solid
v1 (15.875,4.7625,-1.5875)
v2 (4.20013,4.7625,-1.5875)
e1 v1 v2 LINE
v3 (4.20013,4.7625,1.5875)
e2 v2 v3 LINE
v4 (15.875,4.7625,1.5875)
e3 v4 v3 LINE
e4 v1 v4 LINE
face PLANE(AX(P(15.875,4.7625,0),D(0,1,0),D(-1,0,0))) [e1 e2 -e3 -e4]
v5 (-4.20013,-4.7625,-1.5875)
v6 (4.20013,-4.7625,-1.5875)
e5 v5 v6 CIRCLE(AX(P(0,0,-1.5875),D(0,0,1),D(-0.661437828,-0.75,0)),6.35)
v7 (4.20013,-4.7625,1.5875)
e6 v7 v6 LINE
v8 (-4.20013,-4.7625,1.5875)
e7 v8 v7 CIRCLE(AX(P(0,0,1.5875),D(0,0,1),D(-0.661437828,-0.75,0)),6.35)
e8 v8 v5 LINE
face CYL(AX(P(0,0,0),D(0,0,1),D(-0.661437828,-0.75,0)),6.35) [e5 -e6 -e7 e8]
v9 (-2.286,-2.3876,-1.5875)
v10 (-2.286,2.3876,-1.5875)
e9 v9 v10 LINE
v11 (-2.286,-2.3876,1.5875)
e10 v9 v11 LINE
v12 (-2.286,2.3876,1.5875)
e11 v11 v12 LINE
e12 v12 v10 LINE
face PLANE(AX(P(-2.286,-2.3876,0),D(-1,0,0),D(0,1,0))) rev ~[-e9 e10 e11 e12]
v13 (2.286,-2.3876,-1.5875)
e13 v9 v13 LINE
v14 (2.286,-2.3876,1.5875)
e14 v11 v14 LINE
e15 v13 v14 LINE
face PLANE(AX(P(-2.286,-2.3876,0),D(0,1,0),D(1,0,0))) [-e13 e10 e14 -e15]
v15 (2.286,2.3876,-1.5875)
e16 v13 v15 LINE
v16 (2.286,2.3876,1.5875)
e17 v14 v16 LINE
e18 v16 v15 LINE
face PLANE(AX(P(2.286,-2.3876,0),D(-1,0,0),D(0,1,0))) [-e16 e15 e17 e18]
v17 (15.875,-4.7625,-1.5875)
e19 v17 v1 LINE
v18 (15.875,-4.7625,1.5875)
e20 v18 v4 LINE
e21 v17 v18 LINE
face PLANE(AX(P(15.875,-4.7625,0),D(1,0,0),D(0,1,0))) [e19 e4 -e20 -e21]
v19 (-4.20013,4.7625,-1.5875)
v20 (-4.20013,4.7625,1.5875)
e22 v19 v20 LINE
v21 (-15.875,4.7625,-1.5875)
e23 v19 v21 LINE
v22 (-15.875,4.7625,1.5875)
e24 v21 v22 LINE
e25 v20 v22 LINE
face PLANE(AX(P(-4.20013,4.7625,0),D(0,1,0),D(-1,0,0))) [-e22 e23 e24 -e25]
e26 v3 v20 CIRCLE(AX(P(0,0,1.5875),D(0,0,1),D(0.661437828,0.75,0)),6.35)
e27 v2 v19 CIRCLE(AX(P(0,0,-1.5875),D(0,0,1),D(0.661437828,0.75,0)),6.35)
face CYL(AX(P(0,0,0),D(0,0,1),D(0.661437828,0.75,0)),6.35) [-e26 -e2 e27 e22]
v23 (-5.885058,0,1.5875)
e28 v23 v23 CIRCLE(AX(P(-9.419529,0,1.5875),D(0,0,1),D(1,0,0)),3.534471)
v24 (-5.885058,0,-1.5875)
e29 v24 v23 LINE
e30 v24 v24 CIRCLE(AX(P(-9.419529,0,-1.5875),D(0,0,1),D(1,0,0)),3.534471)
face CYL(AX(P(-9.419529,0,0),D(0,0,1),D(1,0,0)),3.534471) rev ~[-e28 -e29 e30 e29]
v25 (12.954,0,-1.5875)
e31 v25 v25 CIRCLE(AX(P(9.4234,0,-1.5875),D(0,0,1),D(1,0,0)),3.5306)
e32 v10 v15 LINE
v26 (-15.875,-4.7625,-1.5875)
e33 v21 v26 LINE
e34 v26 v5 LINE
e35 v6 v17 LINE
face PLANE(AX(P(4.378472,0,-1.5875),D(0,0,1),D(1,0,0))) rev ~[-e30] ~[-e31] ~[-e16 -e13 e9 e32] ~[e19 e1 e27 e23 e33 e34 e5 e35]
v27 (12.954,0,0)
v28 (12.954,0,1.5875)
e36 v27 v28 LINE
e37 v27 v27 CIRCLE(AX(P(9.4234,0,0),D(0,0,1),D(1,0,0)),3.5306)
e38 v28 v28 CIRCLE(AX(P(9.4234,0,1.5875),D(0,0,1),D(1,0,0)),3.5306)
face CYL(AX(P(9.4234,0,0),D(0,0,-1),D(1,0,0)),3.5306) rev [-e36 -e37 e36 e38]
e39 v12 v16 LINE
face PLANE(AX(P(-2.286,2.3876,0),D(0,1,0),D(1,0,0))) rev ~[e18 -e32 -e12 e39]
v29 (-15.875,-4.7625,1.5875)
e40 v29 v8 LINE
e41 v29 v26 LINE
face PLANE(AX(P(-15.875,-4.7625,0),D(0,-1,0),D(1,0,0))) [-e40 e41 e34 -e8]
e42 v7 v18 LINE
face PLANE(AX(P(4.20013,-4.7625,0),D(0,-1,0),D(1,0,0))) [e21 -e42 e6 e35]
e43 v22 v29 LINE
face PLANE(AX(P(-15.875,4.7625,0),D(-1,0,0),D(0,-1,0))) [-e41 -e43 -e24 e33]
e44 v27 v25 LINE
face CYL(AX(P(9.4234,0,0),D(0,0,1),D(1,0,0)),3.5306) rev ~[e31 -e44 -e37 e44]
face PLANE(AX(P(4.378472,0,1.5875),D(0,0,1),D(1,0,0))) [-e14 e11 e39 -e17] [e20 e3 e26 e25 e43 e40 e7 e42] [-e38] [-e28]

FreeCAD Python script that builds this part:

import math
import FreeCAD as App
import Part
import Sketcher
Q = App.Units.Quantity

doc = App.newDocument("Part")
body = doc.addObject("PartDesign::Body", "Body")

sketch1 = doc.addObject("Sketcher::SketchObject", "Sketch")
body.addObject(sketch1)
sketch1.AttachmentSupport = (doc.XY_Plane, [""])
sketch1.MapMode = "FlatFace"
sketch1.addGeometry([
    Part.LineSegment(App.Vector(4, -5, 0), App.Vector(16, -5, 0)),
    Part.LineSegment(App.Vector(16, -5, 0), App.Vector(16, 5, 0)),
    Part.LineSegment(App.Vector(16, 5, 0), App.Vector(4, 5, 0)),
    Part.ArcOfCircle(Part.Circle(App.Vector(0, 0, 0), App.Vector(0, 0, 1), 6), math.radians(49), math.radians(131)),
    Part.LineSegment(App.Vector(-4, 5, 0), App.Vector(-16, 5, 0)),
    Part.LineSegment(App.Vector(-16, 5, 0), App.Vector(-16, -5, 0)),
    Part.LineSegment(App.Vector(-16, -5, 0), App.Vector(-4, -5, 0)),
    Part.ArcOfCircle(Part.Circle(App.Vector(0, 0, 0), App.Vector(0, 0, 1), 6), math.radians(-131), math.radians(-49)),
], False)
sketch1.addConstraint([
    Sketcher.Constraint("Coincident", 0, 2, 1, 1),
    Sketcher.Constraint("Coincident", 1, 2, 2, 1),
    Sketcher.Constraint("Coincident", 2, 2, 3, 1),
    Sketcher.Constraint("Coincident", 3, 2, 4, 1),
    Sketcher.Constraint("Coincident", 4, 2, 5, 1),
    Sketcher.Constraint("Coincident", 5, 2, 6, 1),
    Sketcher.Constraint("Coincident", 6, 2, 7, 1),
    Sketcher.Constraint("Coincident", 7, 2, 0, 1),
    Sketcher.Constraint("Horizontal", 0),
    Sketcher.Constraint("Vertical", 1),
    Sketcher.Constraint("Horizontal", 2),
    Sketcher.Constraint("Horizontal", 4),
    Sketcher.Constraint("Vertical", 5),
    Sketcher.Constraint("Horizontal", 6),
    Sketcher.Constraint("Coincident", 3, 3, -1, 1),
    Sketcher.Constraint("Coincident", 7, 3, -1, 1),
    Sketcher.Constraint("Equal", 3, 7),
    Sketcher.Constraint("Symmetric", 0, 2, 4, 2, -1, 1),
    Sketcher.Constraint("Horizontal", 2, 2, 3, 2),
    Sketcher.Constraint("Horizontal", 0, 2, 5, 2),
    Sketcher.Constraint("Radius", 3, Q("0.25 in")),
    Sketcher.Constraint("DistanceY", 1, 1, 1, 2, Q("0.375 in")),
    Sketcher.Constraint("DistanceX", 4, 2, 1, 2, Q("1.25 in")),
])
pad1 = doc.addObject("PartDesign::Pad", "Pad")
body.addObject(pad1)
pad1.Profile = sketch1
pad1.Length = Q("0.125 in")
pad1.Midplane = True

sketch2 = doc.addObject("Sketcher::SketchObject", "Sketch001")
body.addObject(sketch2)
sketch2.AttachmentSupport = (doc.XY_Plane, [""])
sketch2.MapMode = "FlatFace"
sketch2.addGeometry([
    Part.LineSegment(App.Vector(-2.3, 2.4, 0), App.Vector(-2.3, -2.4, 0)),
    Part.LineSegment(App.Vector(-2.3, -2.4, 0), App.Vector(2.3, -2.4, 0)),
    Part.LineSegment(App.Vector(2.3, -2.4, 0), App.Vector(2.3, 2.4, 0)),
    Part.LineSegment(App.Vector(2.3, 2.4, 0), App.Vector(-2.3, 2.4, 0)),
    Part.Circle(App.Vector(9.4, 0, 0), App.Vector(0, 0, 1), 3.5),
    Part.Circle(App.Vector(-9.4, 0, 0), App.Vector(0, 0, 1), 3.5),
], False)
sketch2.addConstraint([
    Sketcher.Constraint("Coincident", 0, 2, 1, 1),
    Sketcher.Constraint("Coincident", 1, 2, 2, 1),
    Sketcher.Constraint("Coincident", 2, 2, 3, 1),
    Sketcher.Constraint("Coincident", 3, 2, 0, 1),
    Sketcher.Constraint("Vertical", 0),
    Sketcher.Constraint("Horizontal", 1),
    Sketcher.Constraint("Vertical", 2),
    Sketcher.Constraint("Horizontal", 3),
    Sketcher.Constraint("Symmetric", 0, 2, 2, 2, -1, 1),
    Sketcher.Constraint("PointOnObject", 4, 3, -1),
    Sketcher.Constraint("PointOnObject", 5, 3, -1),
    Sketcher.Constraint("Diameter", 4, Q("0.278 in")),
    Sketcher.Constraint("DistanceX", 1, 1, 1, 2, Q("0.18 in")),
    Sketcher.Constraint("DistanceY", 0, 2, 0, 1, Q("0.188 in")),
    Sketcher.Constraint("DistanceX", -1, 1, 4, 3, Q("0.371 in")),
    Sketcher.Constraint("Diameter", 5, 7.068942),
    Sketcher.Constraint("DistanceX", 5, 3, -1, 1, 9.419529),
])
pocket1 = doc.addObject("PartDesign::Pocket", "Pocket")
body.addObject(pocket1)
pocket1.Profile = sketch2
pocket1.Length = Q("0.125 in")
pocket1.Midplane = True

doc.recompute()
